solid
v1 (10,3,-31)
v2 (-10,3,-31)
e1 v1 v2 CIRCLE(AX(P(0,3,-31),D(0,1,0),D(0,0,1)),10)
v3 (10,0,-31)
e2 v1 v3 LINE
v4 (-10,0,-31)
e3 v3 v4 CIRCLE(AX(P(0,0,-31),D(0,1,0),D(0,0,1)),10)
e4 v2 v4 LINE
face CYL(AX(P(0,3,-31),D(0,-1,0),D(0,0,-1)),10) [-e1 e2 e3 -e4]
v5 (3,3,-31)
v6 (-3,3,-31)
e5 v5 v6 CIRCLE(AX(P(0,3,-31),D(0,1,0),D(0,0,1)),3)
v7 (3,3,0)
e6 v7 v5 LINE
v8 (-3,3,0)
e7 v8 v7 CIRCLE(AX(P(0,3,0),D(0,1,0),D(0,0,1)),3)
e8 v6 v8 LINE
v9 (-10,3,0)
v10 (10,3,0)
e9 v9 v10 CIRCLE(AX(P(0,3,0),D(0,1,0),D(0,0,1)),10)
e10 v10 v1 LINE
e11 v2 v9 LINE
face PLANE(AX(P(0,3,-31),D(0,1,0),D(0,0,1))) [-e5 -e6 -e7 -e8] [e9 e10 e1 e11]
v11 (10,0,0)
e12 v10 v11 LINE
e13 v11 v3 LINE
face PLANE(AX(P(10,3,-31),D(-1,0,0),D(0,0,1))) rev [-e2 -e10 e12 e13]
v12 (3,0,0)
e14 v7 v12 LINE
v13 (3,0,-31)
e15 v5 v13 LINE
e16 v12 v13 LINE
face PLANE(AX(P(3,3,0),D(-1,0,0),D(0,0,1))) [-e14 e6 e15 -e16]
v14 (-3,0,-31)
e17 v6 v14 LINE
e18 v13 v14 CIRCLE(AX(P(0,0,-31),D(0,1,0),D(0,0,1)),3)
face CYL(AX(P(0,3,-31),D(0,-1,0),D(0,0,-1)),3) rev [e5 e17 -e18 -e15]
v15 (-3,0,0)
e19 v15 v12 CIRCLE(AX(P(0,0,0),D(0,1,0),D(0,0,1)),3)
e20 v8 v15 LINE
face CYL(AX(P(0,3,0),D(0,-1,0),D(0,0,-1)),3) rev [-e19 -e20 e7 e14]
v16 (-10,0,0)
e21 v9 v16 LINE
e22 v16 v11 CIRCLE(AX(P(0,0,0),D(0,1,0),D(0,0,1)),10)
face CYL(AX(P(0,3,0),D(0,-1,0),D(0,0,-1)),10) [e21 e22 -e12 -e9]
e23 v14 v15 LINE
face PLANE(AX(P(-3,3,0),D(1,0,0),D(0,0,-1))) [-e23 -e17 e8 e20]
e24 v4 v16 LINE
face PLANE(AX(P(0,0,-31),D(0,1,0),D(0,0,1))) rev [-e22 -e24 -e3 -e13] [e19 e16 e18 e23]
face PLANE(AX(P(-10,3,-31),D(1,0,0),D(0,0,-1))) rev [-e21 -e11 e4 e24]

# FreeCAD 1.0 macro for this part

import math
import FreeCAD as App
import Part
import Sketcher

doc = App.newDocument("Part")
body = doc.addObject("PartDesign::Body", "Body")

# Sketch on XZ plane
sketch1 = body.newObject("Sketcher::SketchObject", "Sketch")
sketch1.AttachmentSupport = (doc.getObject("XZ_Plane"), [""])
sketch1.MapMode = "FlatFace"
sketch1.addGeometry([
    Part.LineSegment(App.Vector(10, 0, 0), App.Vector(10, -31, 0)),  # 0
    Part.ArcOfCircle(Part.Circle(App.Vector(0, -31, 0), App.Vector(0, 0, 1), 10), math.radians(180), math.radians(360)),  # 1
    Part.LineSegment(App.Vector(-10, -31, 0), App.Vector(-10, 0, 0)),  # 2
    Part.ArcOfCircle(Part.Circle(App.Vector(0, 0, 0), App.Vector(0, 0, 1), 10), math.radians(0), math.radians(180)),  # 3
    Part.LineSegment(App.Vector(-3, 0, 0), App.Vector(-3, -31, 0)),  # 4
    Part.ArcOfCircle(Part.Circle(App.Vector(0, -31, 0), App.Vector(0, 0, 1), 3), math.radians(180), math.radians(360)),  # 5
    Part.LineSegment(App.Vector(3, -31, 0), App.Vector(3, 0, 0)),  # 6
    Part.ArcOfCircle(Part.Circle(App.Vector(0, 0, 0), App.Vector(0, 0, 1), 3), math.radians(0), math.radians(180)),  # 7
], False)
sketch1.addConstraint([
    Sketcher.Constraint("Tangent", 0, 2, 1, 2),
    Sketcher.Constraint("Tangent", 1, 1, 2, 1),
    Sketcher.Constraint("Tangent", 2, 2, 3, 2),
    Sketcher.Constraint("Tangent", 3, 1, 0, 1),
    Sketcher.Constraint("Tangent", 4, 2, 5, 1),
    Sketcher.Constraint("Tangent", 5, 2, 6, 1),
    Sketcher.Constraint("Tangent", 6, 2, 7, 1),
    Sketcher.Constraint("Tangent", 7, 2, 4, 1),
    Sketcher.Constraint("Vertical", 0),
    Sketcher.Constraint("Vertical", 2),
    Sketcher.Constraint("Vertical", 4),
    Sketcher.Constraint("Vertical", 6),
    Sketcher.Constraint("Coincident", 3, 3, -1, 1),
    Sketcher.Constraint("Coincident", 7, 3, -1, 1),
    Sketcher.Constraint("Horizontal", 5, 3, 0, 2),
    Sketcher.Constraint("Radius", 1, 10.0),
    Sketcher.Constraint("Radius", 5, 3.0),
    Sketcher.Constraint("DistanceY", 0, 2, 0, 1, 31.0),
])
pad1 = body.newObject("PartDesign::Pad", "Pad")
pad1.Profile = sketch1
pad1.Length = 3
pad1.Reversed = True

doc.recompute()
